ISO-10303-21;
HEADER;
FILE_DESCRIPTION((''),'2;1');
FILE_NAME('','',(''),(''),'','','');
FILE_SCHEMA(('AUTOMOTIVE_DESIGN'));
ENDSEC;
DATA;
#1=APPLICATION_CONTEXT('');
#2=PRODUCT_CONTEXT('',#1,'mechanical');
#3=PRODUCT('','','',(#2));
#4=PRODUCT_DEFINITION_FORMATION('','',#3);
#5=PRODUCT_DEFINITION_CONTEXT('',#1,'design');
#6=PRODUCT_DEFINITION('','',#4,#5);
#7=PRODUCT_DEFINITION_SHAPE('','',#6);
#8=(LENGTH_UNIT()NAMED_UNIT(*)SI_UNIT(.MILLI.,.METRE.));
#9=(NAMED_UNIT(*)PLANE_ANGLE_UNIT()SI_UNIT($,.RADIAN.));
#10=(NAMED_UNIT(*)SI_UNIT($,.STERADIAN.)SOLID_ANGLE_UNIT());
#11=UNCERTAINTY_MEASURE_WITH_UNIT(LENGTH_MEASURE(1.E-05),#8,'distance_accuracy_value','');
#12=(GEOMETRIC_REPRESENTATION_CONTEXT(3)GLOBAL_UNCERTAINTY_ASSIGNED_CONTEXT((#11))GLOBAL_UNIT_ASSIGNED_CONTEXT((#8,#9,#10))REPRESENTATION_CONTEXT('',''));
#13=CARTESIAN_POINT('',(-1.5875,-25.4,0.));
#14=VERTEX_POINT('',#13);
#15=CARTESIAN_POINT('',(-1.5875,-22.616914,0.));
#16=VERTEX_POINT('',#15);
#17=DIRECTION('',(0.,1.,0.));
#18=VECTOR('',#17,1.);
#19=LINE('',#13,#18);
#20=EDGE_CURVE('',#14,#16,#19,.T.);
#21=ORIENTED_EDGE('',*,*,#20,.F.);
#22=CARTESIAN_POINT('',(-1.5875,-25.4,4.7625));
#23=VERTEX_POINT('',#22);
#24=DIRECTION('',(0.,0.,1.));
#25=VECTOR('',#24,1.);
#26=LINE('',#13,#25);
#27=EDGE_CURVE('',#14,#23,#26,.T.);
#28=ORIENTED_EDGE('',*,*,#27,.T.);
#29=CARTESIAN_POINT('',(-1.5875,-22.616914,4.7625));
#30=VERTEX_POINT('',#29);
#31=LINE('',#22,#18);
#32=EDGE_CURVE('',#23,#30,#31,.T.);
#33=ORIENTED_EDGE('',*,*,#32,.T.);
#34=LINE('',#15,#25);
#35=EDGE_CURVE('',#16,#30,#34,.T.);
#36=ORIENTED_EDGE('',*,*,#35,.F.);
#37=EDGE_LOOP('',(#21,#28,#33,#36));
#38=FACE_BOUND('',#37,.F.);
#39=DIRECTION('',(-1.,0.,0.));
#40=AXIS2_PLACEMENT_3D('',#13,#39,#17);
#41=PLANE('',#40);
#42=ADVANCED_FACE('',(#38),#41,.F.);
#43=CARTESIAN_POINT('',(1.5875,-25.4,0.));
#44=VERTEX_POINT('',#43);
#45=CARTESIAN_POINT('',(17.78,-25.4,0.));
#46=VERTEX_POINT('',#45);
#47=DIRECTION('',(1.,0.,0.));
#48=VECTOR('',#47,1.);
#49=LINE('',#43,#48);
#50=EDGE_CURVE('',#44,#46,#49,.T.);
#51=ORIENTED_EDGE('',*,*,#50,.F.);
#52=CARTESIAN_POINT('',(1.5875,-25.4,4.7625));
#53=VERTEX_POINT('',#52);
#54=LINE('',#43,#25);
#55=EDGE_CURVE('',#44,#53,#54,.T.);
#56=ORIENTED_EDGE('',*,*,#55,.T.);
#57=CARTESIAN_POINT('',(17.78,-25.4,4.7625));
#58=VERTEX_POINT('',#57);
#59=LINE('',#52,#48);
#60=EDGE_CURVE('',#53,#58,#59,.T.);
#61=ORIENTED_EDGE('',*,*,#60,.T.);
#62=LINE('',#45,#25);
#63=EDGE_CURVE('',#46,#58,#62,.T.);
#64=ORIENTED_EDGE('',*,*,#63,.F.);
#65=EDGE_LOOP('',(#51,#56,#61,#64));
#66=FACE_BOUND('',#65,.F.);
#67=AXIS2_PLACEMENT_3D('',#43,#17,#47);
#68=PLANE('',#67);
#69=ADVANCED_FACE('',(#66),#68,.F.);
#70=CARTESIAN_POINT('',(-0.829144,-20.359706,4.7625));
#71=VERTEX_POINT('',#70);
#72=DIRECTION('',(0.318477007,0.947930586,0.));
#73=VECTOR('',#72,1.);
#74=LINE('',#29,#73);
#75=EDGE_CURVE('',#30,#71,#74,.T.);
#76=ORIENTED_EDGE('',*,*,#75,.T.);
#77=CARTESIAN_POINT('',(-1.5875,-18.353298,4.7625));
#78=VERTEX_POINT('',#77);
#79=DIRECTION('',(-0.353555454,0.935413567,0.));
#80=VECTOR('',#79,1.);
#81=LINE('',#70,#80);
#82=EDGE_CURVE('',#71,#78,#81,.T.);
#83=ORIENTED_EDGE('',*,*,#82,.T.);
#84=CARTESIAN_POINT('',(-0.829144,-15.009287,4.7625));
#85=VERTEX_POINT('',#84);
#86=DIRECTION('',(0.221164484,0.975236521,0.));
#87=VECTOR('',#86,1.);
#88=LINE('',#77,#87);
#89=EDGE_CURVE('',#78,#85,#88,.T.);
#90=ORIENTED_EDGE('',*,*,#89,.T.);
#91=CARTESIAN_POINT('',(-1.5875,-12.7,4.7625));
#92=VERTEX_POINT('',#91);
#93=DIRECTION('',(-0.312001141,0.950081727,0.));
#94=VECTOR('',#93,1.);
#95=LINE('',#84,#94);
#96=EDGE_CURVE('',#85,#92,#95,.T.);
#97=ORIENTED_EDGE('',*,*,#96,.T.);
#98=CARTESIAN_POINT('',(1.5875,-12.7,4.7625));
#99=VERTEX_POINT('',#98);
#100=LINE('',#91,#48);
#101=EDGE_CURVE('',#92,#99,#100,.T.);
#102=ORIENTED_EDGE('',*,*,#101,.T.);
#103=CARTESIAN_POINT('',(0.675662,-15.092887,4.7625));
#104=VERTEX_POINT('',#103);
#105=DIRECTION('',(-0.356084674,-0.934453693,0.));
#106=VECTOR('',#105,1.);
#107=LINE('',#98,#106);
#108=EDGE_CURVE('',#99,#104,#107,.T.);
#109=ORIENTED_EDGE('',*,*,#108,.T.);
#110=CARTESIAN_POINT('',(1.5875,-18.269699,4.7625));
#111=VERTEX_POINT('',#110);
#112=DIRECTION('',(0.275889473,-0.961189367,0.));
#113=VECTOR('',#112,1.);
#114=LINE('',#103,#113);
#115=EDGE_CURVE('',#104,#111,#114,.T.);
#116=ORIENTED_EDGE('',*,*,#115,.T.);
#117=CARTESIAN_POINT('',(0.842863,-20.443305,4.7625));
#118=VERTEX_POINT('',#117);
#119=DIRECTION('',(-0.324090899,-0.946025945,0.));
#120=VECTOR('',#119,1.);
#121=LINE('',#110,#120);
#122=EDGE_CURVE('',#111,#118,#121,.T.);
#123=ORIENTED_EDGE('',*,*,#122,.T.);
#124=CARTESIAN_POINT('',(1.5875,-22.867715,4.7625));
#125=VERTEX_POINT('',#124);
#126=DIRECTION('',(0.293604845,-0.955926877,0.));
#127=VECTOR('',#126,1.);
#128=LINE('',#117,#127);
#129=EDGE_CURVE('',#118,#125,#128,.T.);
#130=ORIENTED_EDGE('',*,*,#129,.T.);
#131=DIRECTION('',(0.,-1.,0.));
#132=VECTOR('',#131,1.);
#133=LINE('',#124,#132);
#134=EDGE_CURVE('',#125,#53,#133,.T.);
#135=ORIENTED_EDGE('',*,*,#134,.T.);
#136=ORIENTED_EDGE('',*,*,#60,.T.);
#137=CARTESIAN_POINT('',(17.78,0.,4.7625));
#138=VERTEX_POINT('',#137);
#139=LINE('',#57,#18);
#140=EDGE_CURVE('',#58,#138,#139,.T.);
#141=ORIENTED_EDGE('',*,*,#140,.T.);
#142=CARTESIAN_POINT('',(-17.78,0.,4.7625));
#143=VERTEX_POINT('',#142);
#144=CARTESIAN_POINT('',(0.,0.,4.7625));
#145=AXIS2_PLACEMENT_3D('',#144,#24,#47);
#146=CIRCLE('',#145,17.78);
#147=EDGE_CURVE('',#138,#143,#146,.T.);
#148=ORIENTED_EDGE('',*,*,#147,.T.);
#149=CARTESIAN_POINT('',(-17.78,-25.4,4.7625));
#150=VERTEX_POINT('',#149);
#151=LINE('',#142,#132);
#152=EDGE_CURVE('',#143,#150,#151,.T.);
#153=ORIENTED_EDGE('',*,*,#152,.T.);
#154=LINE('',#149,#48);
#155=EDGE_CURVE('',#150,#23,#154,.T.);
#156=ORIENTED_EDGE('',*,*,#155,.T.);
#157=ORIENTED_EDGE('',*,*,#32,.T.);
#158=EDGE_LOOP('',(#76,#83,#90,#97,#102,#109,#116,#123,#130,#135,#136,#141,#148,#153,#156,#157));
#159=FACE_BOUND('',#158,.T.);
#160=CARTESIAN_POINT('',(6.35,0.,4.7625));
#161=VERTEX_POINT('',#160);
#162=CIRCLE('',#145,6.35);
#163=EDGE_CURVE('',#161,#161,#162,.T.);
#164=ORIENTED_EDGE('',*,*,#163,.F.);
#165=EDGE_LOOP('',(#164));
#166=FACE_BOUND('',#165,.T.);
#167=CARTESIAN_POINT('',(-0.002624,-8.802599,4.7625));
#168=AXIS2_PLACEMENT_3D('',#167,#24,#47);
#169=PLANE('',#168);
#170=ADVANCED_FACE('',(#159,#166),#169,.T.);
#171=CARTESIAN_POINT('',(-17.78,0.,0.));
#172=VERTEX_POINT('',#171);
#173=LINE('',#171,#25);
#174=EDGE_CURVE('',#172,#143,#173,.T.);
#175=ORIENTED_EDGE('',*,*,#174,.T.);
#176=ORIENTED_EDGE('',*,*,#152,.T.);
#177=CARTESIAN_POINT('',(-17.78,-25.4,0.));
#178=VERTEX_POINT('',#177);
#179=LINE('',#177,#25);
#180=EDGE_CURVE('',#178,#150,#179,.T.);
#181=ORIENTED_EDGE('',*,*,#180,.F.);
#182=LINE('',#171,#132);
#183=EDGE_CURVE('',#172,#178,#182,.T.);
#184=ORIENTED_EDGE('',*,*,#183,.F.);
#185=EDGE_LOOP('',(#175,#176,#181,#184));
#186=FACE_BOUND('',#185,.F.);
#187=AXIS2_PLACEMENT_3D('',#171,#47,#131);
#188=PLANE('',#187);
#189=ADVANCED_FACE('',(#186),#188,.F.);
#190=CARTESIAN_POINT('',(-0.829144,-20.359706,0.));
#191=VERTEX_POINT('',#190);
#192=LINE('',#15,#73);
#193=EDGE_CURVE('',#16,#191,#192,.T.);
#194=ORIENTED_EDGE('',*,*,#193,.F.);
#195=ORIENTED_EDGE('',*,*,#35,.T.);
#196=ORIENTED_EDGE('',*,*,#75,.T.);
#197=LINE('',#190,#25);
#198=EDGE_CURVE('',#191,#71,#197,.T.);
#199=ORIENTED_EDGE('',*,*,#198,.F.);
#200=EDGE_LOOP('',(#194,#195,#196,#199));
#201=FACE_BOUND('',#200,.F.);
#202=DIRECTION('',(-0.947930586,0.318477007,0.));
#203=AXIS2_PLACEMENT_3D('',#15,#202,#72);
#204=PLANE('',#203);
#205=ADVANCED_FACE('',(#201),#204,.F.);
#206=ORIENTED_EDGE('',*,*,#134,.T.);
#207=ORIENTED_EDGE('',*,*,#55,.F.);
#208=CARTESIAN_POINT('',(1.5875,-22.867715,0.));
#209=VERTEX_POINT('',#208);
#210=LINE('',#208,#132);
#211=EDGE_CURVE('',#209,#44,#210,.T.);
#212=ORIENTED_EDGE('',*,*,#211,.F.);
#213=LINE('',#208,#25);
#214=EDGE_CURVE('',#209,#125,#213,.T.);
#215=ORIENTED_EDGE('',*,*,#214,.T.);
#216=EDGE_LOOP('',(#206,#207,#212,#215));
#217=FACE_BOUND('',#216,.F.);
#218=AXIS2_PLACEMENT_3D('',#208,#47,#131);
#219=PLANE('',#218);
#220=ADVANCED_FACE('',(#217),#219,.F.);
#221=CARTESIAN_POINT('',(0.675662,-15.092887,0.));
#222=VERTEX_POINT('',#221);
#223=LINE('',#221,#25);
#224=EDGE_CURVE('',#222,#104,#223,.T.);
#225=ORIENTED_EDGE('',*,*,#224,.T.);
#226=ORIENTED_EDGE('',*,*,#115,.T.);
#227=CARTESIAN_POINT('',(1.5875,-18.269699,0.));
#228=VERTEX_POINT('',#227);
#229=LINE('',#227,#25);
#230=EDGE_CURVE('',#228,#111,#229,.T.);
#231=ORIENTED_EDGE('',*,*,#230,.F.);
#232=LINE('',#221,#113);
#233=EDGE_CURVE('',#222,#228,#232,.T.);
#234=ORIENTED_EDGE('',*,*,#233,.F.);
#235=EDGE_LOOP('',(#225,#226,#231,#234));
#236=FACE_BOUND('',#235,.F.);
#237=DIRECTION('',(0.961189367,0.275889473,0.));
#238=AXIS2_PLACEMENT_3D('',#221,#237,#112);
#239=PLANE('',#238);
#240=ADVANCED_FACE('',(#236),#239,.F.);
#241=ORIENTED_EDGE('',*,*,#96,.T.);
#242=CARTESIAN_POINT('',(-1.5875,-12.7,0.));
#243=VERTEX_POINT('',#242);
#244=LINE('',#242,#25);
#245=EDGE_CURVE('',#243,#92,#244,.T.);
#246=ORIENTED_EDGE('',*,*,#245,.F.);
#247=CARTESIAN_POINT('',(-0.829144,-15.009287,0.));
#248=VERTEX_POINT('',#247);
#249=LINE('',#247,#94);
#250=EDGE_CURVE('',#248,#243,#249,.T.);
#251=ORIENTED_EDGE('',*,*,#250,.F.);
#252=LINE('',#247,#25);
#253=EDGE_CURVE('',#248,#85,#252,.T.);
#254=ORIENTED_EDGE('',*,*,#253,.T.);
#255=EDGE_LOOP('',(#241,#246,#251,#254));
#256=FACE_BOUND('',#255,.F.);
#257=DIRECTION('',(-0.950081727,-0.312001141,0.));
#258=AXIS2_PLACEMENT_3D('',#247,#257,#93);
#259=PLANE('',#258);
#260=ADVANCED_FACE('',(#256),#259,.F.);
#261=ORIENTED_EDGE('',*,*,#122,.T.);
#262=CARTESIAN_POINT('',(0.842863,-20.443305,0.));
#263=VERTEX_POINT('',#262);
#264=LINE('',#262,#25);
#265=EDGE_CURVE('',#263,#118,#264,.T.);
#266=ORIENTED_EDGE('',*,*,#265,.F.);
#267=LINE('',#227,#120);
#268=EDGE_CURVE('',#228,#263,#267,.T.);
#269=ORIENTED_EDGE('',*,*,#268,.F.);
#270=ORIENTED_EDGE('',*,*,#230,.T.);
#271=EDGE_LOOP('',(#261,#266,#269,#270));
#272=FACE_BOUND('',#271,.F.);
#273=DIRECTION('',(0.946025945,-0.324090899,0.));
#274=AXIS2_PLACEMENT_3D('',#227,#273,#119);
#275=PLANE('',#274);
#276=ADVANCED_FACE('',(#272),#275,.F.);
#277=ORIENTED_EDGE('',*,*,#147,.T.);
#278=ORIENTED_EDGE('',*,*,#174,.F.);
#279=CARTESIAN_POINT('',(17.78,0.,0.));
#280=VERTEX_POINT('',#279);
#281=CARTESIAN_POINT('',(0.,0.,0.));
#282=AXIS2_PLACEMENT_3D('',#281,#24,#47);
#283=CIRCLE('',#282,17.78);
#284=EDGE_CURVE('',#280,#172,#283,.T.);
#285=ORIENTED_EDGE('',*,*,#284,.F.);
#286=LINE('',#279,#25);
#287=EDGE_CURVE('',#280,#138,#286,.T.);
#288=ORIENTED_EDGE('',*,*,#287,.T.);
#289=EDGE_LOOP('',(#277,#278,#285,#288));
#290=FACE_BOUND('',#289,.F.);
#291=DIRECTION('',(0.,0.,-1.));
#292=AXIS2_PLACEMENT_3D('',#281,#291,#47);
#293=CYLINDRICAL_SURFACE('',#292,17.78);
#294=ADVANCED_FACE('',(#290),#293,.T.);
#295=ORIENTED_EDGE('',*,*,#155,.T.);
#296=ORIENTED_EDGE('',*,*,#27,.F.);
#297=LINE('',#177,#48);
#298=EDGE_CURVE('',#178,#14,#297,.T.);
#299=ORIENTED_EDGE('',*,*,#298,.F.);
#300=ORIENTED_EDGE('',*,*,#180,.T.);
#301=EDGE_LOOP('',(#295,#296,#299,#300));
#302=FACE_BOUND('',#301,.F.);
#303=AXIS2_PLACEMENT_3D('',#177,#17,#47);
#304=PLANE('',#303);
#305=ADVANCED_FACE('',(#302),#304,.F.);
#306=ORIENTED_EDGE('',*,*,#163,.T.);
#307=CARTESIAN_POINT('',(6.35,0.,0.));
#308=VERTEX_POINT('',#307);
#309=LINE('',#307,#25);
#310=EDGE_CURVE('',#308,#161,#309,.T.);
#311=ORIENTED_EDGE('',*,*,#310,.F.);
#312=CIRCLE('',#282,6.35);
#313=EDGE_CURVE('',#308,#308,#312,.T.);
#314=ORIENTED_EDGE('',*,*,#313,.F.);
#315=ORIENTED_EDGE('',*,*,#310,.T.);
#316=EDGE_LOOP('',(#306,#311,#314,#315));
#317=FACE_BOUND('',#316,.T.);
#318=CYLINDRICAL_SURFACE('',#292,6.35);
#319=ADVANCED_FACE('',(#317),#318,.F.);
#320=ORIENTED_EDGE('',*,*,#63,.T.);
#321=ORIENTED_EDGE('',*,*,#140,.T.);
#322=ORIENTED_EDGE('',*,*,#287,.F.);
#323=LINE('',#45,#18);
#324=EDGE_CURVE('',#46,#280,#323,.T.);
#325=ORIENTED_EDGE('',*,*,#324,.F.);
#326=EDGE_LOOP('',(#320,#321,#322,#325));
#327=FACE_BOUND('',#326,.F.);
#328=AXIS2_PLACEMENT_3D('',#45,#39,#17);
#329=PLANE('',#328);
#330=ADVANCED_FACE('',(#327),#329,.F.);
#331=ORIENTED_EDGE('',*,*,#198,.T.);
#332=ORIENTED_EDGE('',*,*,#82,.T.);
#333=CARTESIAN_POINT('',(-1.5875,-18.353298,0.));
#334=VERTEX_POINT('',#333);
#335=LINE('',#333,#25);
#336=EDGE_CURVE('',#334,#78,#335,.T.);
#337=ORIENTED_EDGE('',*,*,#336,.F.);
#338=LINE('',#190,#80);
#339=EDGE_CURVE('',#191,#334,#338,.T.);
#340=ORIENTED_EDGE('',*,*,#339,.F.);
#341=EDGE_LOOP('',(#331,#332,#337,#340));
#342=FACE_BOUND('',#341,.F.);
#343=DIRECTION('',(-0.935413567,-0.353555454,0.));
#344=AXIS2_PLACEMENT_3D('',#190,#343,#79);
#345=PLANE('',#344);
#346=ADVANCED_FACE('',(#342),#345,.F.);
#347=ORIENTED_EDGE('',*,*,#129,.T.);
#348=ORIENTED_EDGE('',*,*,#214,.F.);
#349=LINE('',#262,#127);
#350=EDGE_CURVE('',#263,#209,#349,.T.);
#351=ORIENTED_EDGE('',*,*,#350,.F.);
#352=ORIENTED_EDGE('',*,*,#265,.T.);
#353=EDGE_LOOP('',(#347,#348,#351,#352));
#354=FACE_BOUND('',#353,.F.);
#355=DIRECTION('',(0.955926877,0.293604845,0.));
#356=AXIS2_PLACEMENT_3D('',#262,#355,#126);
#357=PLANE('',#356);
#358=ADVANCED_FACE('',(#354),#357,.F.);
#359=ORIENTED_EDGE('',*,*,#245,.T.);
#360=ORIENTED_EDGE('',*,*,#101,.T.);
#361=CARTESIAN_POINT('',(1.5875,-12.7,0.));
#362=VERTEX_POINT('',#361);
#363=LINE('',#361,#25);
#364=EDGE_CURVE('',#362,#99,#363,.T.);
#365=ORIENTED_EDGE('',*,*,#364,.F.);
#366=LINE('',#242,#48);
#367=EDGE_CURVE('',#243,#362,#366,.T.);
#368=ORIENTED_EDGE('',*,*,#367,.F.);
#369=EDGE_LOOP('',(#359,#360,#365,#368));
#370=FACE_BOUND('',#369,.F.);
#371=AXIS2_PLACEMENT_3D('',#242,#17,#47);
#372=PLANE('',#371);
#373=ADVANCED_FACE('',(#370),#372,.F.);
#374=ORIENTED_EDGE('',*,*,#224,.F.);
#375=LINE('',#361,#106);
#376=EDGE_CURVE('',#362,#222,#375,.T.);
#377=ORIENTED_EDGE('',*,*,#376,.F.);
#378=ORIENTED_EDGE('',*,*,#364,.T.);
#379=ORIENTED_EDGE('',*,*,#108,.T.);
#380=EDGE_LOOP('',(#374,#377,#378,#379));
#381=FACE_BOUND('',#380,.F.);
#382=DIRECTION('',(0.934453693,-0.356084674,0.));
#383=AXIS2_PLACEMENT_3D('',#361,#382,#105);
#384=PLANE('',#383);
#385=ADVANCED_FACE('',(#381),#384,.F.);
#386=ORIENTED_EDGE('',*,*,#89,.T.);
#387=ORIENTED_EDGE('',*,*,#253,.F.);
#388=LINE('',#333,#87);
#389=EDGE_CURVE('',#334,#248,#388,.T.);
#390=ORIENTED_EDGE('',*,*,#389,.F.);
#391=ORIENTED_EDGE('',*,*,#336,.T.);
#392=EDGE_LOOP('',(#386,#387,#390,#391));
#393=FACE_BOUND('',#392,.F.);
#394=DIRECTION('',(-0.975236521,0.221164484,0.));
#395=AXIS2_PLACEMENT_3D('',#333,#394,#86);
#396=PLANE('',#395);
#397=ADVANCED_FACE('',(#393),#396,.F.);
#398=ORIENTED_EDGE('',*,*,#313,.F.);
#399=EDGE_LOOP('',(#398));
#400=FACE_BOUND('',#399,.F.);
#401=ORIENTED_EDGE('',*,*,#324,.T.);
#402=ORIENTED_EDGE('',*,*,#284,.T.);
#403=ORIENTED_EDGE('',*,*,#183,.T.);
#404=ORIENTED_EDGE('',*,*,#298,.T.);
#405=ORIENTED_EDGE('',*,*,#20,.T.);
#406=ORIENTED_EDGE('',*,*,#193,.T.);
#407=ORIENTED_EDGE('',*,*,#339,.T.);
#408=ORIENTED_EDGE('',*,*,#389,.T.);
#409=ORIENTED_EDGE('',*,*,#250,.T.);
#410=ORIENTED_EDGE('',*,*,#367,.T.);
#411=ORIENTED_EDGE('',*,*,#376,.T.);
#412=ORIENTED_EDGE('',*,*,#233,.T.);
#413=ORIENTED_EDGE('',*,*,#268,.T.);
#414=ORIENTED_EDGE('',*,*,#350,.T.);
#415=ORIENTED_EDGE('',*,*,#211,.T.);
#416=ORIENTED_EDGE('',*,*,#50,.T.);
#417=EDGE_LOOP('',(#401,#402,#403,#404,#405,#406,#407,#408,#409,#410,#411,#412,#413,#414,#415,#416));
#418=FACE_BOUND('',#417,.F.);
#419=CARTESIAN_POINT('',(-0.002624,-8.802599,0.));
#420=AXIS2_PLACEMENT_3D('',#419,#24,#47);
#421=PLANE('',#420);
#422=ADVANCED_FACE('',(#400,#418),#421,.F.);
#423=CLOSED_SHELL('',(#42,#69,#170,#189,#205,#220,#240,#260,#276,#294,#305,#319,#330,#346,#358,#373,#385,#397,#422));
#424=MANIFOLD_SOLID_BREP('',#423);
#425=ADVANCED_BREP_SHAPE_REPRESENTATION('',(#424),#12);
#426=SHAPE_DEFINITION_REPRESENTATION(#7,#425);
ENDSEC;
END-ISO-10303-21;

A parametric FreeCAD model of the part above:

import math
import FreeCAD as App
import Part
import Sketcher
from FreeCAD import Vector
Q = App.Units.Quantity

doc = App.newDocument("Part")
body = doc.addObject("PartDesign::Body", "Body")

sketch1 = body.newObject("Sketcher::SketchObject", "Sketch")
sketch1.AttachmentSupport = (doc.getObject("XY_Plane"), [""])
sketch1.MapMode = "FlatFace"
sketch1.addGeometry([
    Part.LineSegment(Vector(17.8, -25.4, 0), Vector(17.8, 0, 0)),
    Part.ArcOfCircle(Part.Circle(Vector(0, 0, 0), Vector(0, 0, 1), 17.8), math.radians(0), math.radians(180)),
    Part.LineSegment(Vector(-17.8, 0, 0), Vector(-17.8, -25.4, 0)),
    Part.LineSegment(Vector(-17.8, -25.4, 0), Vector(-1.6, -25.4, 0)),
    Part.LineSegment(Vector(-1.6, -25.4, 0), Vector(-1.6, -22.6, 0)),
    Part.LineSegment(Vector(-1.6, -22.6, 0), Vector(-0.8, -20.4, 0)),
    Part.LineSegment(Vector(-0.8, -20.4, 0), Vector(-1.6, -18.4, 0)),
    Part.LineSegment(Vector(-1.6, -18.4, 0), Vector(-0.8, -15, 0)),
    Part.LineSegment(Vector(-0.8, -15, 0), Vector(-1.6, -12.7, 0)),
    Part.LineSegment(Vector(-1.6, -12.7, 0), Vector(1.6, -12.7, 0)),
    Part.LineSegment(Vector(1.6, -12.7, 0), Vector(0.7, -15.1, 0)),
    Part.LineSegment(Vector(0.7, -15.1, 0), Vector(1.6, -18.3, 0)),
    Part.LineSegment(Vector(1.6, -18.3, 0), Vector(0.8, -20.4, 0)),
    Part.LineSegment(Vector(0.8, -20.4, 0), Vector(1.6, -22.9, 0)),
    Part.LineSegment(Vector(1.6, -22.9, 0), Vector(1.6, -25.4, 0)),
    Part.LineSegment(Vector(1.6, -25.4, 0), Vector(17.8, -25.4, 0)),
    Part.Circle(Vector(0, 0, 0), Vector(0, 0, 1), 6.3),
], False)
sketch1.addConstraint([
    Sketcher.Constraint("Tangent", 0, 2, 1, 1),
    Sketcher.Constraint("Tangent", 1, 2, 2, 1),
    Sketcher.Constraint("Coincident", 2, 2, 3, 1),
    Sketcher.Constraint("Coincident", 3, 2, 4, 1),
    Sketcher.Constraint("Coincident", 4, 2, 5, 1),
    Sketcher.Constraint("Coincident", 5, 2, 6, 1),
    Sketcher.Constraint("Coincident", 6, 2, 7, 1),
    Sketcher.Constraint("Coincident", 7, 2, 8, 1),
    Sketcher.Constraint("Coincident", 8, 2, 9, 1),
    Sketcher.Constraint("Coincident", 9, 2, 10, 1),
    Sketcher.Constraint("Coincident", 10, 2, 11, 1),
    Sketcher.Constraint("Coincident", 11, 2, 12, 1),
    Sketcher.Constraint("Coincident", 12, 2, 13, 1),
    Sketcher.Constraint("Coincident", 13, 2, 14, 1),
    Sketcher.Constraint("Coincident", 14, 2, 15, 1),
    Sketcher.Constraint("Coincident", 15, 2, 0, 1),
    Sketcher.Constraint("Vertical", 0),
    Sketcher.Constraint("Vertical", 2),
    Sketcher.Constraint("Horizontal", 3),
    Sketcher.Constraint("Vertical", 4),
    Sketcher.Constraint("Horizontal", 9),
    Sketcher.Constraint("Vertical", 14),
    Sketcher.Constraint("Horizontal", 15),
    Sketcher.Constraint("Coincident", 1, 3, -1, 1),
    Sketcher.Constraint("Coincident", 16, 3, -1, 1),
    Sketcher.Constraint("Symmetric", 3, 2, 14, 2, -2),
    Sketcher.Constraint("Vertical", 4, 2, 6, 2),
    Sketcher.Constraint("Vertical", 5, 2, 7, 2),
    Sketcher.Constraint("Vertical", 6, 2, 8, 2),
    Sketcher.Constraint("Vertical", 9, 2, 11, 2),
    Sketcher.Constraint("Vertical", 11, 2, 13, 2),
    Sketcher.Constraint("Diameter", 16, Q("0.5 in")),
    Sketcher.Constraint("Radius", 1, Q("0.7 in")),
    Sketcher.Constraint("DistanceY", 0, 1, 0, 2, Q("1 in")),
    Sketcher.Constraint("DistanceY", 8, 2, -1, 1, Q("0.5 in")),
    Sketcher.Constraint("DistanceX", 9, 1, 9, 2, Q("0.125 in")),
    Sketcher.Constraint("DistanceY", 11, 2, -1, 1, 18.269699),
    Sketcher.Constraint("DistanceY", 3, 2, 6, 2, 7.046702),
    Sketcher.Constraint("DistanceY", 10, 2, 7, 2, 0.0836),
    Sketcher.Constraint("DistanceY", 12, 2, 5, 2, 0.083599),
    Sketcher.Constraint("DistanceX", 10, 2, 12, 2, 0.167201),
    Sketcher.Constraint("DistanceY", 13, 2, 4, 2, 0.250801),
    Sketcher.Constraint("Distance", 8, 2.430619),
    Sketcher.Constraint("DistanceY", 4, 1, 4, 2, 2.783086),
    Sketcher.Constraint("DistanceX", -1, 1, 10, 2, 0.675662),
    Sketcher.Constraint("DistanceY", 4, 2, 5, 2, 2.257208),
    Sketcher.Constraint("DistanceY", 6, 2, 7, 2, 3.344011),
])
pad1 = body.newObject("PartDesign::Pad", "Pad")
pad1.Profile = sketch1
pad1.Length = Q("0.1875 in")

doc.recompute()
